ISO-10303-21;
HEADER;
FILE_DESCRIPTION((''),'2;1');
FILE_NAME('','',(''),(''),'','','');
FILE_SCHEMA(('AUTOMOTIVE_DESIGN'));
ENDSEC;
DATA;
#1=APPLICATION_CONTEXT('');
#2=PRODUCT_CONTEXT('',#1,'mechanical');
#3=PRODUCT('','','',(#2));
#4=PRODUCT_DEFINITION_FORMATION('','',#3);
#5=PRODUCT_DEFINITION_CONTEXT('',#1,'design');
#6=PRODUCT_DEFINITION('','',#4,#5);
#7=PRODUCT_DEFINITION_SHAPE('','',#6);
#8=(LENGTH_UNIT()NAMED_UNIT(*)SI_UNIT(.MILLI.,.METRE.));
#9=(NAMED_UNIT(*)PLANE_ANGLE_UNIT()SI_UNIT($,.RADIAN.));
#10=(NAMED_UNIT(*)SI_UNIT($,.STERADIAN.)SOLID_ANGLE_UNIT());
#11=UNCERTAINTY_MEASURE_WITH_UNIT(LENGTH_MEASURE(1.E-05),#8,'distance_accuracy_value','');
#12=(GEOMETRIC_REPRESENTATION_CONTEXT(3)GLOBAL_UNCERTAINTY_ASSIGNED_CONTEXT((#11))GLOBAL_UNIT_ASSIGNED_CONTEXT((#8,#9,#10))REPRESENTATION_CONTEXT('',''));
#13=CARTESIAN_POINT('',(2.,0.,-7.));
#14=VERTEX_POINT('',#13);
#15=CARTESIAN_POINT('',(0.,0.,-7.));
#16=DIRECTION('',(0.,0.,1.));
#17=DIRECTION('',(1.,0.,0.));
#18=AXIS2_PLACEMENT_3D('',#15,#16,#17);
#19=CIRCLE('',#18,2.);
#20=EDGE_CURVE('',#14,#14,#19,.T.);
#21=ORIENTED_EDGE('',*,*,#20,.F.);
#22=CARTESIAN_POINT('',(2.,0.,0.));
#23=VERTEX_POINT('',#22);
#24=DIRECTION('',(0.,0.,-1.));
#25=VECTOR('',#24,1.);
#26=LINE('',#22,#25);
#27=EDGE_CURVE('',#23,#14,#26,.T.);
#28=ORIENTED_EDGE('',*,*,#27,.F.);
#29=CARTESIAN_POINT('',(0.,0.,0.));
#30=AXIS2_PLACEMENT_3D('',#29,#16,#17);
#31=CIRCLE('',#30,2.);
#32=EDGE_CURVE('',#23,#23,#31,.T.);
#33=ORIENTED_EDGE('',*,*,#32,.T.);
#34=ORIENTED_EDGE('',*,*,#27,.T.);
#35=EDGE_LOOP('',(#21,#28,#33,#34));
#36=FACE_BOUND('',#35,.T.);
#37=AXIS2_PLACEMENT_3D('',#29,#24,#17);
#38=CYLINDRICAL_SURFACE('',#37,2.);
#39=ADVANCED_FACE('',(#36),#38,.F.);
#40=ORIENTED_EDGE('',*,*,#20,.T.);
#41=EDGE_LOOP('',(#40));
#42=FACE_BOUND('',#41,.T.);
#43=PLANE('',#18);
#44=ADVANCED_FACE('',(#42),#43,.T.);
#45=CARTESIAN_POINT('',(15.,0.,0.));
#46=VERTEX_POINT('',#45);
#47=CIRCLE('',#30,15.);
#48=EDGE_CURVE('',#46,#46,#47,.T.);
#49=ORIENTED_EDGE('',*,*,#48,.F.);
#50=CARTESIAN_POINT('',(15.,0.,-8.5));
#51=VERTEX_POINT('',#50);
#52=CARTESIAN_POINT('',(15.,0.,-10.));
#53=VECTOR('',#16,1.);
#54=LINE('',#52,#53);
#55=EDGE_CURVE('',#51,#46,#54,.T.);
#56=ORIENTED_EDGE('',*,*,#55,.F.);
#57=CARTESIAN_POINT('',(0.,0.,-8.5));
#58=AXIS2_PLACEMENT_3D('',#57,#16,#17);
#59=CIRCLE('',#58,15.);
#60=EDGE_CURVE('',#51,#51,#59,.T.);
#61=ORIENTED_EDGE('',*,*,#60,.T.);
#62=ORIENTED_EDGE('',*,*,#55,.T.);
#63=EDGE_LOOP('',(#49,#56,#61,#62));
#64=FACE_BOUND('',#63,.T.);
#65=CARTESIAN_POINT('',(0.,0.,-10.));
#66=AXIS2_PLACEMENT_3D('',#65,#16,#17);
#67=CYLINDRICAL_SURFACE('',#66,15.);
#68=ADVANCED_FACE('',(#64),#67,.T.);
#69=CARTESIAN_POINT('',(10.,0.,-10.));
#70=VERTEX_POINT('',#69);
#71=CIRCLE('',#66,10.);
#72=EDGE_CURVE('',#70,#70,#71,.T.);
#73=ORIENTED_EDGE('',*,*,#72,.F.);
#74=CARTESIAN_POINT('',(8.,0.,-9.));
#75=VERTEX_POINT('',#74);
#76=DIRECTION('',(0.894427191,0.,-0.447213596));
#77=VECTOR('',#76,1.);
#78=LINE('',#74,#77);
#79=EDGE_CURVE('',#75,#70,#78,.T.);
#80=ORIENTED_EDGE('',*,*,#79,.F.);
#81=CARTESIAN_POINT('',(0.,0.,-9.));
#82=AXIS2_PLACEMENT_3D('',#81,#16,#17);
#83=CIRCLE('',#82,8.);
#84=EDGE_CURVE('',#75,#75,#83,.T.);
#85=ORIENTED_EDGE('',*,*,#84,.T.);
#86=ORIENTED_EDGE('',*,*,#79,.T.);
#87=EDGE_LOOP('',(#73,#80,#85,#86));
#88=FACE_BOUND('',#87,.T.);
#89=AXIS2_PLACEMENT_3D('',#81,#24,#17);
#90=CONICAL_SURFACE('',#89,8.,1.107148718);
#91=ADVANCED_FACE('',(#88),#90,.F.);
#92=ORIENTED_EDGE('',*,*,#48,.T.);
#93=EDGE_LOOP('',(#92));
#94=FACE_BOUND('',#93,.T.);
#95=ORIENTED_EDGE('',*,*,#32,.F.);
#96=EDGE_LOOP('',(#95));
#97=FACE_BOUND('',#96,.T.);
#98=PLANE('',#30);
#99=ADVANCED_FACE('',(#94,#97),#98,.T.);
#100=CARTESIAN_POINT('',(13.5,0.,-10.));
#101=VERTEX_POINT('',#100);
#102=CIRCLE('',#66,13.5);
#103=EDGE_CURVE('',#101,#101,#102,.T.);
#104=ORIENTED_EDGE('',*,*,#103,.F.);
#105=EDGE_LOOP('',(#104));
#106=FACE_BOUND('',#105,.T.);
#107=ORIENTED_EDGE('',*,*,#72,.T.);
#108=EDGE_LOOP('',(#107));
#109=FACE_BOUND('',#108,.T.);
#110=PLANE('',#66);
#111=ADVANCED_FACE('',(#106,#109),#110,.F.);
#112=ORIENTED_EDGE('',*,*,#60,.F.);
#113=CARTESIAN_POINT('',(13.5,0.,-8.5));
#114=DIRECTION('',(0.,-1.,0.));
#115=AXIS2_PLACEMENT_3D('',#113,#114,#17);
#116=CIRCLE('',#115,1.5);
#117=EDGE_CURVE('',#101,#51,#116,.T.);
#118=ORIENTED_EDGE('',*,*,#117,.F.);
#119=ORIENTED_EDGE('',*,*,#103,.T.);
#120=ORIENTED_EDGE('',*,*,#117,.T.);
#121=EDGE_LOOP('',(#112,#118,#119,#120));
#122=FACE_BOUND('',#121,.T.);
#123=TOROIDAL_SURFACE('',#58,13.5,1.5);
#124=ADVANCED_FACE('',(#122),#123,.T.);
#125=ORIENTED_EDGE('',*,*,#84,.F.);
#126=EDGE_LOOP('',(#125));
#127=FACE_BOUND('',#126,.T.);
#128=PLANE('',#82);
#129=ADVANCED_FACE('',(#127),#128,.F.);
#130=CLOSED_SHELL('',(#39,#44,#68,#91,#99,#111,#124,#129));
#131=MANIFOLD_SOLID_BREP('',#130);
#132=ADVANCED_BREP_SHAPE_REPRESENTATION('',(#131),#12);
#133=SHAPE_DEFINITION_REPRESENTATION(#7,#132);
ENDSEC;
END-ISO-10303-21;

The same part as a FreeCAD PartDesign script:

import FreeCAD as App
import Part
import Sketcher

V = App.Vector


def edges_at(feature, points):
    """Names of the edges that pass closest to the given points."""
    edges = feature.Shape.Edges
    near = lambda p: min(range(len(edges)), key=lambda i: edges[i].distToShape(Part.Vertex(*p))[0])
    return sorted({f"Edge{near(p) + 1}" for p in points})


def add_polygon(sketch, points):
    """Adds a closed chain of lines whose ends are joined by coincident constraints."""
    first, n = sketch.GeometryCount, len(points)
    for a, b in zip(points, points[1:] + points[:1]):
        sketch.addGeometry(Part.LineSegment(App.Vector(*a, 0), App.Vector(*b, 0)), False)
    for i in range(n):
        sketch.addConstraint(Sketcher.Constraint("Coincident", first + i, 2, first + (i + 1) % n, 1))

doc = App.newDocument("Part")
body = doc.addObject("PartDesign::Body", "Body")

# Sketch on XZ plane
sketch1 = body.newObject("Sketcher::SketchObject", "Sketch")
sketch1.AttachmentSupport = (doc.getObject("XZ_Plane"), [""])
sketch1.MapMode = "FlatFace"
add_polygon(sketch1, [(15, 0), (2, 0), (2, -7), (0, -7), (0, -9), (8, -9), (10, -10), (15, -10)])  # lines 0-7
sketch1.addConstraint([
    Sketcher.Constraint("Horizontal", 0),
    Sketcher.Constraint("Vertical", 1),
    Sketcher.Constraint("Horizontal", 2),
    Sketcher.Constraint("Vertical", 3),
    Sketcher.Constraint("Horizontal", 4),
    Sketcher.Constraint("Horizontal", 6),
    Sketcher.Constraint("Vertical", 7),
    Sketcher.Constraint("PointOnObject", 0, 2, -1),
    Sketcher.Constraint("PointOnObject", 2, 2, -2),
    Sketcher.Constraint("Equal", 2, 3),
    Sketcher.Constraint("DistanceX", 0, 2, 0, 1, 13.0),
    Sketcher.Constraint("DistanceX", 2, 2, 2, 1, 2.0),
    Sketcher.Constraint("DistanceX", 4, 1, 4, 2, 8.0),
    Sketcher.Constraint("DistanceX", 6, 1, 6, 2, 5.0),
    Sketcher.Constraint("DistanceY", 1, 2, 1, 1, 7.0),
    Sketcher.Constraint("DistanceY", 7, 1, 7, 2, 10.0),
])
revolution = body.newObject("PartDesign::Revolution", "Revolution")
revolution.Profile = sketch1
revolution.ReferenceAxis = (sketch1, ["V_Axis"])
revolution.Angle = 360
doc.recompute()

fillet = body.newObject("PartDesign::Fillet", "Fillet")
fillet.Base = (revolution, edges_at(revolution, [(-15, 0, -10)]))
fillet.Radius = 1.5

doc.recompute()
